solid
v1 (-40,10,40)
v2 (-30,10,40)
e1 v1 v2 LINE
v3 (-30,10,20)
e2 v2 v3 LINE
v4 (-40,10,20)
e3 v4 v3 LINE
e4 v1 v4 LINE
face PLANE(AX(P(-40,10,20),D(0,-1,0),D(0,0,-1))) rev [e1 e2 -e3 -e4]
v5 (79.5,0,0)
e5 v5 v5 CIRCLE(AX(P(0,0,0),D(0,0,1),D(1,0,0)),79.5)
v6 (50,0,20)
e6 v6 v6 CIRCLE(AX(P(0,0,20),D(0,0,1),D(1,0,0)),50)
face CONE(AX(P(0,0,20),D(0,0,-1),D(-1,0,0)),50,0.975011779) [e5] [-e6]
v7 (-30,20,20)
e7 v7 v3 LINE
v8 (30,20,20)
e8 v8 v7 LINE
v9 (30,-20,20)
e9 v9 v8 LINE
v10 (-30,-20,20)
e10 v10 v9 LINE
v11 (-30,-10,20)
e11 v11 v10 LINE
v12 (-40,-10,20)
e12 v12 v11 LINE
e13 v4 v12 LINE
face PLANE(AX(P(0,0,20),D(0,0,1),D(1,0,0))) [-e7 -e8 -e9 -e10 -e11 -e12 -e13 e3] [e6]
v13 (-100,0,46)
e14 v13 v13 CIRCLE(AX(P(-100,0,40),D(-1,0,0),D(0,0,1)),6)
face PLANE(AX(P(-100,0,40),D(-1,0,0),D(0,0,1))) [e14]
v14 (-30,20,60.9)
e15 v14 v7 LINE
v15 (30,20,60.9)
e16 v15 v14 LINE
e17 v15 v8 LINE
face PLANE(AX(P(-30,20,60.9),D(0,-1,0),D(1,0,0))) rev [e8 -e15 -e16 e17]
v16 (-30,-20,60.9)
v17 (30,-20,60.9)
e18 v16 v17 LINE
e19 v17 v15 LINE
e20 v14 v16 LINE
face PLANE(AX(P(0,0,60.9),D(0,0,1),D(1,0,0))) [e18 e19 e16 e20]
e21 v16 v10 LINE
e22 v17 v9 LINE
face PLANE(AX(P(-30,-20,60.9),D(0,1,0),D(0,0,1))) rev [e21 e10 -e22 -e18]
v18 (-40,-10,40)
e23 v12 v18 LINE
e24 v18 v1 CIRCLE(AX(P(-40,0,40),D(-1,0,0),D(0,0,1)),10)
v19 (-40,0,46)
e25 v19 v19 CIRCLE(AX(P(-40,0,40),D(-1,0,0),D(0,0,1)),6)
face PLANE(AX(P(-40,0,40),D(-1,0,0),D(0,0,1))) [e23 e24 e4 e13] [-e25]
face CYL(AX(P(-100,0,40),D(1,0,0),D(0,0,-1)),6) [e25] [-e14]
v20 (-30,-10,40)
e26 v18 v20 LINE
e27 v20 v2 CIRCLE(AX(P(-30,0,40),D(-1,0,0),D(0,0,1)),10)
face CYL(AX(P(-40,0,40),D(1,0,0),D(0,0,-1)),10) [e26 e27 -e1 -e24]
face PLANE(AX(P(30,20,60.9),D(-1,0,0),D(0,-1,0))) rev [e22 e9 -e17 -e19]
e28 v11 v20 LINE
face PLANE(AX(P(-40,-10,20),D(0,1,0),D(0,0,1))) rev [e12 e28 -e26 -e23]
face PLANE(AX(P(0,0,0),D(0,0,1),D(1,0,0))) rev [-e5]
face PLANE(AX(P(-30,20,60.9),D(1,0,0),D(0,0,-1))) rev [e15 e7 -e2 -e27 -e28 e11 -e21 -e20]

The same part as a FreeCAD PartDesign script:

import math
import FreeCAD as App
import Part
import Sketcher
from FreeCAD import Vector
Q = App.Units.Quantity

doc = App.newDocument("Part")
params = doc.addObject("Spreadsheet::Sheet", "Params")
for row, (alias, value) in enumerate([
    ("sketch1_diameter", "159 mm"),
    ("sketch2_diameter", "100 mm"),
    ("sketch3_width", "60 mm"),
    ("sketch3_height", "40 mm"),
    ("pad1_length", "40.9 mm"),
    ("sketch4_radius", "10 mm"),
    ("pad2_length", "10 mm"),
    ("sketch5_diameter", "12 mm"),
    ("pad3_length", "60 mm"),
], start=1):
    params.set(f"A{row}", alias)
    params.set(f"B{row}", "=" + value)
    params.setAlias(f"B{row}", alias)

body = doc.addObject("PartDesign::Body", "Body")

sketch1 = body.newObject("Sketcher::SketchObject", "Sketch")
sketch1.AttachmentSupport = (doc.getObject("XY_Plane"), [""])
sketch1.MapMode = "FlatFace"
sketch1.addGeometry(Part.Circle(Vector(0, 0, 0), Vector(0, 0, 1), 80), False)
sketch1.addConstraint([
    Sketcher.Constraint("Coincident", 0, 3, -1, 1),
    Sketcher.Constraint("Diameter", 0, Q("159 mm")),
])
sketch1.setExpression("Constraints[1]", "Params.sketch1_diameter")

sketch2 = body.newObject("Sketcher::SketchObject", "Sketch001")
sketch2.AttachmentSupport = (doc.getObject("XY_Plane"), [""])
sketch2.MapMode = "FlatFace"
sketch2.AttachmentOffset = App.Placement(Vector(0, 0, 20), App.Rotation())
sketch2.addGeometry(Part.Circle(Vector(0, 0, 0), Vector(0, 0, 1), 50), False)
sketch2.addConstraint([
    Sketcher.Constraint("Coincident", 0, 3, -1, 1),
    Sketcher.Constraint("Diameter", 0, Q("100 mm")),
])
sketch2.setExpression("Constraints[1]", "Params.sketch2_diameter")

additiveloft = body.newObject("PartDesign::AdditiveLoft", "AdditiveLoft")
additiveloft.Profile = sketch1
additiveloft.Sections = [sketch2]

sketch3 = body.newObject("Sketcher::SketchObject", "Sketch002")
sketch3.AttachmentSupport = (doc.getObject("XY_Plane"), [""])
sketch3.MapMode = "FlatFace"
sketch3.AttachmentOffset = App.Placement(Vector(0, 0, 20), App.Rotation())
sketch3.addGeometry([
    Part.LineSegment(Vector(-30, 20, 0), Vector(-30, -20, 0)),
    Part.LineSegment(Vector(-30, -20, 0), Vector(30, -20, 0)),
    Part.LineSegment(Vector(30, -20, 0), Vector(30, 20, 0)),
    Part.LineSegment(Vector(30, 20, 0), Vector(-30, 20, 0)),
], False)
sketch3.addConstraint([
    Sketcher.Constraint("Coincident", 0, 2, 1, 1),
    Sketcher.Constraint("Coincident", 1, 2, 2, 1),
    Sketcher.Constraint("Coincident", 2, 2, 3, 1),
    Sketcher.Constraint("Coincident", 3, 2, 0, 1),
    Sketcher.Constraint("Vertical", 0),
    Sketcher.Constraint("Horizontal", 1),
    Sketcher.Constraint("Vertical", 2),
    Sketcher.Constraint("Horizontal", 3),
    Sketcher.Constraint("Symmetric", 0, 2, 2, 2, -1, 1),
    Sketcher.Constraint("DistanceX", 1, 1, 1, 2, Q("60 mm")),
    Sketcher.Constraint("DistanceY", 0, 2, 0, 1, Q("40 mm")),
])
sketch3.setExpression("Constraints[9]", "Params.sketch3_width")
sketch3.setExpression("Constraints[10]", "Params.sketch3_height")
pad1 = body.newObject("PartDesign::Pad", "Pad")
pad1.Profile = sketch3
pad1.setExpression("Length", "Params.pad1_length")

sketch4 = body.newObject("Sketcher::SketchObject", "Sketch003")
sketch4.AttachmentSupport = (doc.getObject("YZ_Plane"), [""])
sketch4.MapMode = "FlatFace"
sketch4.AttachmentOffset = App.Placement(Vector(0, 0, -30), App.Rotation())
sketch4.addGeometry([
    Part.LineSegment(Vector(10, 40, 0), Vector(10, 20, 0)),
    Part.LineSegment(Vector(10, 20, 0), Vector(-10, 20, 0)),
    Part.LineSegment(Vector(-10, 20, 0), Vector(-10, 40, 0)),
    Part.ArcOfCircle(Part.Circle(Vector(0, 40, 0), Vector(0, 0, 1), 10), math.radians(0), math.radians(180)),
], False)
sketch4.addConstraint([
    Sketcher.Constraint("Coincident", 0, 2, 1, 1),
    Sketcher.Constraint("Coincident", 1, 2, 2, 1),
    Sketcher.Constraint("Tangent", 2, 2, 3, 2),
    Sketcher.Constraint("Tangent", 3, 1, 0, 1),
    Sketcher.Constraint("Vertical", 0),
    Sketcher.Constraint("Horizontal", 1),
    Sketcher.Constraint("Vertical", 2),
    Sketcher.Constraint("PointOnObject", 3, 3, -2),
    Sketcher.Constraint("Equal", 1, 0),
    Sketcher.Constraint("Radius", 3, Q("10 mm")),
    Sketcher.Constraint("DistanceY", -1, 1, 3, 3, Q("40 mm")),
])
sketch4.setExpression("Constraints[9]", "Params.sketch4_radius")
pad2 = body.newObject("PartDesign::Pad", "Pad001")
pad2.Profile = sketch4
pad2.setExpression("Length", "Params.pad2_length")
pad2.Reversed = True

sketch5 = body.newObject("Sketcher::SketchObject", "Sketch004")
sketch5.AttachmentSupport = (doc.getObject("YZ_Plane"), [""])
sketch5.MapMode = "FlatFace"
sketch5.AttachmentOffset = App.Placement(Vector(0, 0, -40), App.Rotation())
sketch5.addGeometry(Part.Circle(Vector(0, 40, 0), Vector(0, 0, 1), 6), False)
sketch5.addConstraint([
    Sketcher.Constraint("PointOnObject", 0, 3, -2),
    Sketcher.Constraint("Diameter", 0, Q("12 mm")),
    Sketcher.Constraint("DistanceY", -1, 1, 0, 3, Q("40 mm")),
])
sketch5.setExpression("Constraints[1]", "Params.sketch5_diameter")
pad3 = body.newObject("PartDesign::Pad", "Pad002")
pad3.Profile = sketch5
pad3.setExpression("Length", "Params.pad3_length")
pad3.Reversed = True

doc.recompute()
